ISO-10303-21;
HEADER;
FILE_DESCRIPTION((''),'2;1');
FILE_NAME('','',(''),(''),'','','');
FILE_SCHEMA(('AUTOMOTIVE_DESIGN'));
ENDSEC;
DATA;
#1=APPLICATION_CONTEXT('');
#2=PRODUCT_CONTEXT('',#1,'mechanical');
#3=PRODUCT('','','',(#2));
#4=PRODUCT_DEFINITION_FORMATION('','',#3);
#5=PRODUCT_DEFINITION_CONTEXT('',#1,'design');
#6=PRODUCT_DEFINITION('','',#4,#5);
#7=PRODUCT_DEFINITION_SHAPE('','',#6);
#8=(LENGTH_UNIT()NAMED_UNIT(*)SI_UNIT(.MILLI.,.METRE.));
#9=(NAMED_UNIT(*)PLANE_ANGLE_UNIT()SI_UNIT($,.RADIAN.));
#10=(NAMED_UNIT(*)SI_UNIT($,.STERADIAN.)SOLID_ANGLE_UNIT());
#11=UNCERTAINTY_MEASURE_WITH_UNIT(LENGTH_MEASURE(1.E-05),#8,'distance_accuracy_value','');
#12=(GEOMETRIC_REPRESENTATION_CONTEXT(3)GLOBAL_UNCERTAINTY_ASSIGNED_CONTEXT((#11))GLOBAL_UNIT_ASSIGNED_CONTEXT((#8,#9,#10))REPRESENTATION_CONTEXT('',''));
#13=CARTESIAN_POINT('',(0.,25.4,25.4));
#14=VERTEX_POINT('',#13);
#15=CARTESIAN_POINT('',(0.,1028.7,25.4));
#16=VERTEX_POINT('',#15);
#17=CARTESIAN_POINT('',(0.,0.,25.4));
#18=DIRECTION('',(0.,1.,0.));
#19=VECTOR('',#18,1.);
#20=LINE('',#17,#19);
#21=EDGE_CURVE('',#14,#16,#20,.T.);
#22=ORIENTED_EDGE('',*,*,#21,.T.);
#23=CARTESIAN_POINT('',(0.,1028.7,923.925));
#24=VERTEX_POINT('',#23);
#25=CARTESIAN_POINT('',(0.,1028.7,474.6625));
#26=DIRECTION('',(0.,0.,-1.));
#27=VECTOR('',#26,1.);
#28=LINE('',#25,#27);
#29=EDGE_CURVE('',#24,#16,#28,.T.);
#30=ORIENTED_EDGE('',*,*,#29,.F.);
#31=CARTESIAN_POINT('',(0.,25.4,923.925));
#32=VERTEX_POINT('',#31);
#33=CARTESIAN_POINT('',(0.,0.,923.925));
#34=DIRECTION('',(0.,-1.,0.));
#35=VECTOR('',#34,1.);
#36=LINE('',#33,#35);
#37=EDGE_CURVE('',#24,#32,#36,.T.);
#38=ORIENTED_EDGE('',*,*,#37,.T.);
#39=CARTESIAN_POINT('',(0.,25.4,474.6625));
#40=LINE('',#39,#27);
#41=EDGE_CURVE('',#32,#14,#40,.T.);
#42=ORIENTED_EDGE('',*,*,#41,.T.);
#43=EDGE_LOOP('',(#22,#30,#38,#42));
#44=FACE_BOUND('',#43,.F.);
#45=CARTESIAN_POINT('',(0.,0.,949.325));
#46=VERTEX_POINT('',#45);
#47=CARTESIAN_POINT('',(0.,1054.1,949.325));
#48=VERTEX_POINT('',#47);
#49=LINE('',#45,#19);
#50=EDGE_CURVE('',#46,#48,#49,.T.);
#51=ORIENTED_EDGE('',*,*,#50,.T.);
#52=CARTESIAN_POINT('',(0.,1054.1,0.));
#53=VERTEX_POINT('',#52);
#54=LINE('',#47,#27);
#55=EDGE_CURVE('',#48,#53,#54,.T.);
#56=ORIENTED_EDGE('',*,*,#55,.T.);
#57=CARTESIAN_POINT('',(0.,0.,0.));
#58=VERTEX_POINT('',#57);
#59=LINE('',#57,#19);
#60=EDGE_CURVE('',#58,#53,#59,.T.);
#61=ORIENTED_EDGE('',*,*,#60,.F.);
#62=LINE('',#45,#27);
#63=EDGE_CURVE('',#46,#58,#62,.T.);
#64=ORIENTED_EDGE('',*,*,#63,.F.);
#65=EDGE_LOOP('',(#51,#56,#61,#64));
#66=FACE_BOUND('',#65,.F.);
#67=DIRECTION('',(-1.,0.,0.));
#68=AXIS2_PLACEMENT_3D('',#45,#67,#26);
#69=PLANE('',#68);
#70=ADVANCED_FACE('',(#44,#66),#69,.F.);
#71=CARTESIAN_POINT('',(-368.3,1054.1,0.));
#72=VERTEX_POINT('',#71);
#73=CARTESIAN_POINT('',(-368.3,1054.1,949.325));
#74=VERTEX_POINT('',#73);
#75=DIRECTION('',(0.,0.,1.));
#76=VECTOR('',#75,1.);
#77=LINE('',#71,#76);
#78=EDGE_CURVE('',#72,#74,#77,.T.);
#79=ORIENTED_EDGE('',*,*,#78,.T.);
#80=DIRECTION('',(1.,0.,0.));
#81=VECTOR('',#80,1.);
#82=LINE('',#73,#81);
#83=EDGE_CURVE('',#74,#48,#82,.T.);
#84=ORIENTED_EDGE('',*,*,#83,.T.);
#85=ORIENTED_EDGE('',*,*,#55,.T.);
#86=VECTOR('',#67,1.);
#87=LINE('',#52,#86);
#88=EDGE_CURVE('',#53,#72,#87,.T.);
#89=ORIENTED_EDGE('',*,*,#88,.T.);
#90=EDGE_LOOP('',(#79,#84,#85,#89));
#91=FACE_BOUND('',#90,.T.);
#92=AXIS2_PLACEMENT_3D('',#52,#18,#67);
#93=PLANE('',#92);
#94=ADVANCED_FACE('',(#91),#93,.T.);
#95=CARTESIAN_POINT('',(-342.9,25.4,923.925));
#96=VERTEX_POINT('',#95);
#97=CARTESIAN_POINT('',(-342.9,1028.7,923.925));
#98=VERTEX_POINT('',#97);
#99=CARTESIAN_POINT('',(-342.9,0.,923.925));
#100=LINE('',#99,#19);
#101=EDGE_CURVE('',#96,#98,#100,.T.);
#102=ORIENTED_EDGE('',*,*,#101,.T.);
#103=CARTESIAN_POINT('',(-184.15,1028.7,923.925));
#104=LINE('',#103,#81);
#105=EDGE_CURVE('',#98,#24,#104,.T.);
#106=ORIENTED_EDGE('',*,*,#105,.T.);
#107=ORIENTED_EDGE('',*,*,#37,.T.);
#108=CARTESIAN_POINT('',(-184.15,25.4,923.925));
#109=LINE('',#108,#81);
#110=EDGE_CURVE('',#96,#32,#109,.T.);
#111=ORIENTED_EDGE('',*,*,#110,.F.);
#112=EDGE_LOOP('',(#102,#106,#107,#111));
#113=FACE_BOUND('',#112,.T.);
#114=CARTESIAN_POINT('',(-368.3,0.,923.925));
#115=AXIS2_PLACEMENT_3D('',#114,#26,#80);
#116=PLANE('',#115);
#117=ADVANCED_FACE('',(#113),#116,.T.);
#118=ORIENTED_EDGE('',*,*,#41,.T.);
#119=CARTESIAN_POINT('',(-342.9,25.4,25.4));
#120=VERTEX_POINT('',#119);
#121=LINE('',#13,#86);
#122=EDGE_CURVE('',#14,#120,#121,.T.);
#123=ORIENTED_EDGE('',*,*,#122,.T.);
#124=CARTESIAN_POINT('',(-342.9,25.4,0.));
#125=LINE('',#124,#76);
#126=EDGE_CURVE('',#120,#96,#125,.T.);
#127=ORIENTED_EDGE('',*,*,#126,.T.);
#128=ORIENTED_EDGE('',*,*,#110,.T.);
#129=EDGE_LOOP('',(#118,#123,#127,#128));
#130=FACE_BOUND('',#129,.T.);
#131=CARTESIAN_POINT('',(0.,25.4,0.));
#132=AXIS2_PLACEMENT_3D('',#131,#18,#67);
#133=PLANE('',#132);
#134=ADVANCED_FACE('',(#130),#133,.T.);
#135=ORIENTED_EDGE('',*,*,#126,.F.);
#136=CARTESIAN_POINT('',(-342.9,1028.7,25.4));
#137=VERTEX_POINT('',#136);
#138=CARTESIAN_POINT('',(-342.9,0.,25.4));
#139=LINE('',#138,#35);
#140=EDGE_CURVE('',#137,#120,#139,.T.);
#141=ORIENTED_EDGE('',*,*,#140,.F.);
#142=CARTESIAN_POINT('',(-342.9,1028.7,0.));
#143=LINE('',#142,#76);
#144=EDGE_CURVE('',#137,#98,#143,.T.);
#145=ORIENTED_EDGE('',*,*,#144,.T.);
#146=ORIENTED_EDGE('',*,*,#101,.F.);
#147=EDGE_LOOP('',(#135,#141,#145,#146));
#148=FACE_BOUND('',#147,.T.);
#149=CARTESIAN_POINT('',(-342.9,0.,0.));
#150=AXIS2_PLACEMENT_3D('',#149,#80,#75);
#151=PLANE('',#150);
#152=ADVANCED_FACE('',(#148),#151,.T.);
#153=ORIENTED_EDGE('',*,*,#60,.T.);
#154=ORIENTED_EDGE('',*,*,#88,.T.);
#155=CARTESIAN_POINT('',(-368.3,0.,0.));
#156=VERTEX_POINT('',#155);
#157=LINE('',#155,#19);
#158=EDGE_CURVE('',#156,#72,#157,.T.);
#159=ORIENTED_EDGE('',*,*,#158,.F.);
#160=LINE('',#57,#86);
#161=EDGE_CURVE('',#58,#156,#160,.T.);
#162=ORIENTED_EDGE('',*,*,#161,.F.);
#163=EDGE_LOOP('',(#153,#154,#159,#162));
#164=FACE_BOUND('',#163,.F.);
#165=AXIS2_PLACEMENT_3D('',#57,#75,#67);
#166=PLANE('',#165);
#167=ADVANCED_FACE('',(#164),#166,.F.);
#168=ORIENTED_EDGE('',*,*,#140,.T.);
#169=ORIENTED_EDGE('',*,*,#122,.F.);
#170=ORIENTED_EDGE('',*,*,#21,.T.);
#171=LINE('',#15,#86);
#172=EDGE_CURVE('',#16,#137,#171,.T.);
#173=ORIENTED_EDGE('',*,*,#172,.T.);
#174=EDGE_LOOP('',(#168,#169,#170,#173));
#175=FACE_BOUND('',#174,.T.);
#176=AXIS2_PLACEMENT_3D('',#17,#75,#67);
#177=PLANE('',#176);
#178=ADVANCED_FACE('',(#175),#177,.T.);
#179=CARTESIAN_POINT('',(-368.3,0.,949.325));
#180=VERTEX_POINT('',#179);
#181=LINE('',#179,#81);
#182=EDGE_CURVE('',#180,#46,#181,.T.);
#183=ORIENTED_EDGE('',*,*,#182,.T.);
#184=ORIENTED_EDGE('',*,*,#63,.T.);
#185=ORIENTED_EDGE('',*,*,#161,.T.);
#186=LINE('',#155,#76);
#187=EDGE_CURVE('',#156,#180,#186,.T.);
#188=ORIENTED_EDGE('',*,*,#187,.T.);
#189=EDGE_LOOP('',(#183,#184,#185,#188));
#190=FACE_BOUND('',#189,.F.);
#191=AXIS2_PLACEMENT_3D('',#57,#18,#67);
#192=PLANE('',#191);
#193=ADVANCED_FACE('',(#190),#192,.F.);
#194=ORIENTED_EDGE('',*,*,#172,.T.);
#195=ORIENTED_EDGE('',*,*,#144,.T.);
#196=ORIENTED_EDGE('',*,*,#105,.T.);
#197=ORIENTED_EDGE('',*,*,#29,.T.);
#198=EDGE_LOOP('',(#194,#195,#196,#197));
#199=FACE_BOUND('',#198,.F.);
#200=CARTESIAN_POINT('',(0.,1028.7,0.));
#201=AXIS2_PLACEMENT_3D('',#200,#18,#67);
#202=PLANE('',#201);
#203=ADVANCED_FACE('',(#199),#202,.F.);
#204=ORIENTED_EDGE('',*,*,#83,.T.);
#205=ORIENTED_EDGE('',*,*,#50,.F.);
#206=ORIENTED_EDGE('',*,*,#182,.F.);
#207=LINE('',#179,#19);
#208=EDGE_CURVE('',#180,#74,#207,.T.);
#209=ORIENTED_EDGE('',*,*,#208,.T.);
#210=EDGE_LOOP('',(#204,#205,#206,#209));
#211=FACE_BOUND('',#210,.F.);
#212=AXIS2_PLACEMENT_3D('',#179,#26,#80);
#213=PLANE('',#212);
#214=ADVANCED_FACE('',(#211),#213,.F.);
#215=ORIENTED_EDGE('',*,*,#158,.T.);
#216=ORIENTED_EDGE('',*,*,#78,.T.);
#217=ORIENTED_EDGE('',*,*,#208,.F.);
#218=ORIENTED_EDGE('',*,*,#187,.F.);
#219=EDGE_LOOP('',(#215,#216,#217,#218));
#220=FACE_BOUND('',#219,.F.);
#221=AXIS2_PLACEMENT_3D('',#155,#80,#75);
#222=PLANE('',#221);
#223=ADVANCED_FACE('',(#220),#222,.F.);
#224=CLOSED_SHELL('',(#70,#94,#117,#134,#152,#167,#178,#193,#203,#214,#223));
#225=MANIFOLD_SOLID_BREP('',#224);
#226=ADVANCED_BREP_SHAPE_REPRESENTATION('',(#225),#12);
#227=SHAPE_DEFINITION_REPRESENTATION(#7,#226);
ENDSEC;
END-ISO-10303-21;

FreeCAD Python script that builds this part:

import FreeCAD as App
import Part
import Sketcher

V = App.Vector
Q = App.Units.Quantity


def faces_at(feature, points):
    """Names of the faces that lie closest to the given points."""
    faces = feature.Shape.Faces
    near = lambda p: min(range(len(faces)), key=lambda i: faces[i].distToShape(Part.Vertex(*p))[0])
    return sorted({f"Face{near(p) + 1}" for p in points})


def add_polygon(sketch, points):
    """Adds a closed chain of lines whose ends are joined by coincident constraints."""
    first, n = sketch.GeometryCount, len(points)
    for a, b in zip(points, points[1:] + points[:1]):
        sketch.addGeometry(Part.LineSegment(App.Vector(*a, 0), App.Vector(*b, 0)), False)
    for i in range(n):
        sketch.addConstraint(Sketcher.Constraint("Coincident", first + i, 2, first + (i + 1) % n, 1))

doc = App.newDocument("Part")
body = doc.addObject("PartDesign::Body", "Body")

# Sketch on XZ plane
sketch1 = body.newObject("Sketcher::SketchObject", "Sketch")
sketch1.AttachmentSupport = (doc.getObject("XZ_Plane"), [""])
sketch1.MapMode = "FlatFace"
add_polygon(sketch1, [(-368, 0), (-368, 949), (0, 949), (0, 0)])  # lines 0-3
sketch1.addConstraint(Sketcher.Constraint("Vertical", 0))
sketch1.addConstraint(Sketcher.Constraint("Horizontal", 1))
sketch1.addConstraint(Sketcher.Constraint("Vertical", 2))
sketch1.addConstraint(Sketcher.Constraint("Horizontal", 3))
sketch1.addConstraint(Sketcher.Constraint("Coincident", 2, 2, -1, 1))
sketch1.addConstraint(Sketcher.Constraint("DistanceX", 1, 1, 1, 2, Q("14.5 in")))
sketch1.addConstraint(Sketcher.Constraint("DistanceY", 0, 1, 0, 2, Q("37.375 in")))
pad1 = body.newObject("PartDesign::Pad", "Pad")
pad1.Profile = sketch1
pad1.Length = Q("41.5 in")
pad1.Reversed = True
doc.recompute()

thickness = body.newObject("PartDesign::Thickness", "Thickness")
thickness.Base = (pad1, faces_at(pad1, [(0, 351.367, 632.883)]))
thickness.Value = Q("1 in")
thickness.Reversed = True
thickness.Join = "Intersection"

doc.recompute()
